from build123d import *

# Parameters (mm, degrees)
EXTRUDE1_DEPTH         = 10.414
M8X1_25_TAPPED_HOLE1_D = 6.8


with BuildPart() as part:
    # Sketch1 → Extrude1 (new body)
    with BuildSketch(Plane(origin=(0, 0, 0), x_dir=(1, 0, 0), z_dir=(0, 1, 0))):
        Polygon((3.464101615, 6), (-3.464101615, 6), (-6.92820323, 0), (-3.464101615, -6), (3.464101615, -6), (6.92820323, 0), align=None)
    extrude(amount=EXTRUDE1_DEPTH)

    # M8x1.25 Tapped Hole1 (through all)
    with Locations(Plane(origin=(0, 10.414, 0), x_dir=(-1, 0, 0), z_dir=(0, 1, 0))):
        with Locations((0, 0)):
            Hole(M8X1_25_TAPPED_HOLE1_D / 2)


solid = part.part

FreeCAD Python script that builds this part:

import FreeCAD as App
import Part
import Sketcher
Q = App.Units.Quantity


def add_polygon(sketch, points):
    """Adds a closed chain of lines whose ends are joined by coincident constraints."""
    first, n = sketch.GeometryCount, len(points)
    for a, b in zip(points, points[1:] + points[:1]):
        sketch.addGeometry(Part.LineSegment(App.Vector(*a, 0), App.Vector(*b, 0)), False)
    for i in range(n):
        sketch.addConstraint(Sketcher.Constraint("Coincident", first + i, 2, first + (i + 1) % n, 1))

doc = App.newDocument("Part")
body = doc.addObject("PartDesign::Body", "Body")

# Sketch on XZ plane
sketch1 = body.newObject("Sketcher::SketchObject", "Sketch")
sketch1.AttachmentSupport = (doc.getObject("XZ_Plane"), [""])
sketch1.MapMode = "FlatFace"
add_polygon(sketch1, [(3, -6), (-3, -6), (-7, 0), (-3, 6), (3, 6), (7, 0)])  # lines 0-5
sketch1.addConstraint([
    Sketcher.Constraint("Horizontal", 0),
    Sketcher.Constraint("Horizontal", 3),
    Sketcher.Constraint("Symmetric", 0, 2, 3, 2, -1, 1),
    Sketcher.Constraint("Symmetric", 1, 2, 4, 2, -1, 1),
    Sketcher.Constraint("PointOnObject", 1, 2, -1),
    Sketcher.Constraint("Parallel", 2, 5),
    Sketcher.Constraint("Vertical", 0, 2, 2, 2),
    Sketcher.Constraint("Angle", 1, Q("120 deg")),
    Sketcher.Constraint("DistanceY", 0, 2, -1, 1, Q("6 mm")),
    Sketcher.Constraint("DistanceX", 0, 2, -1, 1, Q("3.464102 mm")),
])
pad1 = body.newObject("PartDesign::Pad", "Pad")
pad1.Profile = sketch1
pad1.Length = 10.414
pad1.Reversed = True

# Sketch on XZ plane
sketch2 = body.newObject("Sketcher::SketchObject", "Sketch001")
sketch2.AttachmentSupport = (doc.getObject("XZ_Plane"), [""])
sketch2.MapMode = "FlatFace"
sketch2.AttachmentOffset = App.Placement(App.Vector(0, 0, -10.414), App.Rotation())
sketch2.addGeometry(Part.Circle(App.Vector(0, 0, 0), App.Vector(0, 0, 1), 3.4), False)
sketch2.addConstraint([
    Sketcher.Constraint("Coincident", 0, 3, -1, 1),
    Sketcher.Constraint("Diameter", 0, Q("6.8 mm")),
])
doc.recompute()
hole = body.newObject("PartDesign::Hole", "Hole")
hole.Profile = sketch2
hole.ThreadType = "None"
hole.Diameter = 6.8
hole.DepthType = "ThroughAll"
hole.Reversed = True

doc.recompute()
